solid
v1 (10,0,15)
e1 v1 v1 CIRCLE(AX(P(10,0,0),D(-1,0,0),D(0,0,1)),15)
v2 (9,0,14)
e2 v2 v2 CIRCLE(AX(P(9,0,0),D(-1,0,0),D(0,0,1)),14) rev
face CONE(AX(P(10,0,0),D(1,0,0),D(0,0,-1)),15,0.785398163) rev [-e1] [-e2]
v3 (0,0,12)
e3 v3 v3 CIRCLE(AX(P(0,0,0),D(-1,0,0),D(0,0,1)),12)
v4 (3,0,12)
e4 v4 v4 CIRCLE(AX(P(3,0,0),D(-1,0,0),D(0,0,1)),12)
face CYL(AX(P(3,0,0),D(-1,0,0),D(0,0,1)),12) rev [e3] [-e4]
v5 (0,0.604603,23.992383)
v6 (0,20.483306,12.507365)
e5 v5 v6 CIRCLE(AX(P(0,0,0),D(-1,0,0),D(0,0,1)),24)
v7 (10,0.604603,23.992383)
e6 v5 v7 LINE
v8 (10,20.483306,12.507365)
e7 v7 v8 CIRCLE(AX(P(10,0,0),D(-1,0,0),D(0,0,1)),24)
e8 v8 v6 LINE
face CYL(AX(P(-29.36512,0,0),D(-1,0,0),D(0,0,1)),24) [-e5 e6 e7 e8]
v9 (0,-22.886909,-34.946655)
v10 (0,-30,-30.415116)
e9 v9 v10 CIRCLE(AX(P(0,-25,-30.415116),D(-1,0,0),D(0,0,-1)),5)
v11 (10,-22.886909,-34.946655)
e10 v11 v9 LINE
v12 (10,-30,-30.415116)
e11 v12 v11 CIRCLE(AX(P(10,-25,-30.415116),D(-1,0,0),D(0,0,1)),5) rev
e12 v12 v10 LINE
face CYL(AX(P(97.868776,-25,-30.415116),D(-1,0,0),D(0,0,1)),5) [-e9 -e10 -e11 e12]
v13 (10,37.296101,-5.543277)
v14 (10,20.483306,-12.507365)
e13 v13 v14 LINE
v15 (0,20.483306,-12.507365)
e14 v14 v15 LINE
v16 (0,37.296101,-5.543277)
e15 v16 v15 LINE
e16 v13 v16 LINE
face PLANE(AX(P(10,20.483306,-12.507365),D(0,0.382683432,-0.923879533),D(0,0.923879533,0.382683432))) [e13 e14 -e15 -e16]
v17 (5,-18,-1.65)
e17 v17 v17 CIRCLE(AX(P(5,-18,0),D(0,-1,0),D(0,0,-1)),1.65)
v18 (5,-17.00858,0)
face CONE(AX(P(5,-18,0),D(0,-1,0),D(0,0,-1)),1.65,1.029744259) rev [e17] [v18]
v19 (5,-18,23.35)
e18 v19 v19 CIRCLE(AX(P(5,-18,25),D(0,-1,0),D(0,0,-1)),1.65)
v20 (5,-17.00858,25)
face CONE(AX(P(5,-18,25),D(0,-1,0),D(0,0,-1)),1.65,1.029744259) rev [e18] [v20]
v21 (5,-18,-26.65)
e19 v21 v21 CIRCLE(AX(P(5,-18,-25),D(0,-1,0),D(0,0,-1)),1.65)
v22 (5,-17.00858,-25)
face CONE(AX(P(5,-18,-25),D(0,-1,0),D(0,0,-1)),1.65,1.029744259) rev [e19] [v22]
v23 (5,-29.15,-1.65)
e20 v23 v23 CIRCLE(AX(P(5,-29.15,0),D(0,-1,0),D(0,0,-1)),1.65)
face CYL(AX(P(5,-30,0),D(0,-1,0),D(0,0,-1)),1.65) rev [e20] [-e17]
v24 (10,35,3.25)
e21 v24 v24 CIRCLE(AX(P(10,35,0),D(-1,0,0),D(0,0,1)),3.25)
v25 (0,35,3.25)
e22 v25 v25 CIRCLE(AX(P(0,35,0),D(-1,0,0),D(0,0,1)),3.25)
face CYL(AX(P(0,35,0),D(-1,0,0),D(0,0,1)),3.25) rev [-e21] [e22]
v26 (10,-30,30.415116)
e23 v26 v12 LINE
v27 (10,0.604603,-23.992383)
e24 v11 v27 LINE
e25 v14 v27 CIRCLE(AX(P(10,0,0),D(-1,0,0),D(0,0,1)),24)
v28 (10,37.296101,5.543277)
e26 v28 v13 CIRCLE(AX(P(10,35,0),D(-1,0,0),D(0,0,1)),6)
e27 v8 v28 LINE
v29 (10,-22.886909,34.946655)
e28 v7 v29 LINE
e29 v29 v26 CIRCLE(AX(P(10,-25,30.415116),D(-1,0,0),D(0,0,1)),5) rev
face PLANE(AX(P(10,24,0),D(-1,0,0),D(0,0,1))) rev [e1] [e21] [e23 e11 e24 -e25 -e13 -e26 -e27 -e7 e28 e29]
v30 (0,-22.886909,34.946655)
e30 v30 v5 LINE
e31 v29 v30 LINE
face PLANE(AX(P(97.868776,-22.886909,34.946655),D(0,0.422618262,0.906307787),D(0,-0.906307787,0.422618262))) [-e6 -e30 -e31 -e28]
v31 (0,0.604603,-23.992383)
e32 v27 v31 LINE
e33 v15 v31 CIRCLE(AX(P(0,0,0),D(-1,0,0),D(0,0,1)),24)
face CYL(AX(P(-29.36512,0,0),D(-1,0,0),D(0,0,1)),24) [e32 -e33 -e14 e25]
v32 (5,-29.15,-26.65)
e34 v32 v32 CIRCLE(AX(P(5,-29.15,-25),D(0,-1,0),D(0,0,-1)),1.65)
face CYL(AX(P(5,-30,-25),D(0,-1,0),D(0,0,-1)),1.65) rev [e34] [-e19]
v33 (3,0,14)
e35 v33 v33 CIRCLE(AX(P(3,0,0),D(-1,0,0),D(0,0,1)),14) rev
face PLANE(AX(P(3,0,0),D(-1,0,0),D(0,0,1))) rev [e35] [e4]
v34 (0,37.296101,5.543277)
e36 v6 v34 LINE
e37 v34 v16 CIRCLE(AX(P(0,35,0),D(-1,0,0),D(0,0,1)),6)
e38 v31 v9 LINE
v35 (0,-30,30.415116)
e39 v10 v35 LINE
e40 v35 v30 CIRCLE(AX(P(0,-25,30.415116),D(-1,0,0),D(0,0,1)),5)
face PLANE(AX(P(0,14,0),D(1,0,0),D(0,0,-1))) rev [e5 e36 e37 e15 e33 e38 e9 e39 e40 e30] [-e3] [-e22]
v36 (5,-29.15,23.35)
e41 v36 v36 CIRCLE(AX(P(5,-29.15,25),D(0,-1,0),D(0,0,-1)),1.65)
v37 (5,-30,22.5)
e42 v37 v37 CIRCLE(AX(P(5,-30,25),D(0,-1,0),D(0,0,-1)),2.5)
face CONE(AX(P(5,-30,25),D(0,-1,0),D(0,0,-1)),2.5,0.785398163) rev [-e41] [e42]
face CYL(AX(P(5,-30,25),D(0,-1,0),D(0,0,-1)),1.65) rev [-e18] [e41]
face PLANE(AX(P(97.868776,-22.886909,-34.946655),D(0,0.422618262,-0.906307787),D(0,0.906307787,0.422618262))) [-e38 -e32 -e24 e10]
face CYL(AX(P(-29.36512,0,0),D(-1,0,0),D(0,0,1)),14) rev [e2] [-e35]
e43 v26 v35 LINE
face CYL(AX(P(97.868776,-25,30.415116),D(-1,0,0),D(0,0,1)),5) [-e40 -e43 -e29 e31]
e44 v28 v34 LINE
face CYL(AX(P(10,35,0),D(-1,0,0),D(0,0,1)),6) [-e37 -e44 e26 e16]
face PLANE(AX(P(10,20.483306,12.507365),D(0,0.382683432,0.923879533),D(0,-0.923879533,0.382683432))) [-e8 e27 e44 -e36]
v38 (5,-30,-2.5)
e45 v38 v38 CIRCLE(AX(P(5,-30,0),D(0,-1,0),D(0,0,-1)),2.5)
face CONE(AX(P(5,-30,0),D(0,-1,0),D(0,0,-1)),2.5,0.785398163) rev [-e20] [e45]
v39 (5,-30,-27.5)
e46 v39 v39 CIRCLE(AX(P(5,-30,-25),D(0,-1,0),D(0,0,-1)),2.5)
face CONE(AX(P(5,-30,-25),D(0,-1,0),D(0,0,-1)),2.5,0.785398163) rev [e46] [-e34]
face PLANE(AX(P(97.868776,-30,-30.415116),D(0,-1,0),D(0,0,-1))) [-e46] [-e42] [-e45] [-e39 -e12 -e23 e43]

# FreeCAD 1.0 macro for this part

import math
import FreeCAD as App
import Part
import Sketcher
from FreeCAD import Vector
Q = App.Units.Quantity


def edges_at(feature, points):
    """Names of the edges that pass closest to the given points."""
    edges = feature.Shape.Edges
    near = lambda p: min(range(len(edges)), key=lambda i: edges[i].distToShape(Part.Vertex(*p))[0])
    return sorted({f"Edge{near(p) + 1}" for p in points})


def add_polygon(sketch, points):
    """Adds a closed chain of lines whose ends are joined by coincident constraints."""
    first, n = sketch.GeometryCount, len(points)
    for a, b in zip(points, points[1:] + points[:1]):
        sketch.addGeometry(Part.LineSegment(App.Vector(*a, 0), App.Vector(*b, 0)), False)
    for i in range(n):
        sketch.addConstraint(Sketcher.Constraint("Coincident", first + i, 2, first + (i + 1) % n, 1))

doc = App.newDocument("Part")
body = doc.addObject("PartDesign::Body", "Body")

# Sketch on XY plane
sketch1 = body.newObject("Sketcher::SketchObject", "Sketch")
sketch1.AttachmentSupport = (doc.getObject("XY_Plane"), [""])
sketch1.MapMode = "FlatFace"
add_polygon(sketch1, [(0, 24), (0, 14), (10, 14), (10, 24)])  # lines 0-3
sketch1.addConstraint([
    Sketcher.Constraint("Vertical", 0),
    Sketcher.Constraint("Horizontal", 1),
    Sketcher.Constraint("Vertical", 2),
    Sketcher.Constraint("Horizontal", 3),
    Sketcher.Constraint("PointOnObject", 0, 2, -2),
    Sketcher.Constraint("Equal", 3, 0),
    Sketcher.Constraint("DistanceX", 1, 1, 1, 2, Q("10 mm")),
    Sketcher.Constraint("DistanceY", -1, 1, 0, 2, Q("14 mm")),
])
revolution = body.newObject("PartDesign::Revolution", "Revolution")
revolution.Profile = sketch1
revolution.ReferenceAxis = (sketch1, ["H_Axis"])
revolution.Angle = 360

# Sketch on YZ plane
sketch2 = body.newObject("Sketcher::SketchObject", "Sketch001")
sketch2.AttachmentSupport = (doc.getObject("YZ_Plane"), [""])
sketch2.MapMode = "FlatFace"
sketch2.addGeometry([
    Part.Circle(Vector(0, 0, 0), Vector(0, 0, 1), 14),
    Part.Circle(Vector(0, 0, 0), Vector(0, 0, 1), 12),
], False)
sketch2.addConstraint([
    Sketcher.Constraint("Coincident", 0, 3, -1, 1),
    Sketcher.Constraint("Coincident", 1, 3, -1, 1),
    Sketcher.Constraint("Diameter", 0, Q("28 mm")),
    Sketcher.Constraint("Diameter", 1, Q("24 mm")),
])
pad1 = body.newObject("PartDesign::Pad", "Pad")
pad1.Profile = sketch2
pad1.Length = 3

# Sketch on YZ plane
sketch3 = body.newObject("Sketcher::SketchObject", "Sketch002")
sketch3.AttachmentSupport = (doc.getObject("YZ_Plane"), [""])
sketch3.MapMode = "FlatFace"
sketch3.addGeometry([
    Part.LineSegment(Vector(-30, -30, 0), Vector(-30, 30, 0)),  # 0
    Part.ArcOfCircle(Part.Circle(Vector(-25, 30, 0), Vector(0, 0, 1), 5), math.radians(65), math.radians(180)),  # 1
    Part.LineSegment(Vector(-23, 35, 0), Vector(9, 20, 0)),  # 2
    Part.ArcOfCircle(Part.Circle(Vector(0, 0, 0), Vector(0, 0, 1), 22), math.radians(-65), math.radians(65)),  # 3
    Part.LineSegment(Vector(9, -20, 0), Vector(-23, -35, 0)),  # 4
    Part.ArcOfCircle(Part.Circle(Vector(-25, -30, 0), Vector(0, 0, 1), 5), math.radians(180), math.radians(295)),  # 5
    Part.Circle(Vector(0, 0, 0), Vector(0, 0, 1), 20),  # 6
], False)
sketch3.addConstraint([
    Sketcher.Constraint("Tangent", 0, 2, 1, 2),
    Sketcher.Constraint("Tangent", 1, 1, 2, 1),
    Sketcher.Constraint("Tangent", 2, 2, 3, 2),
    Sketcher.Constraint("Tangent", 3, 1, 4, 1),
    Sketcher.Constraint("Tangent", 4, 2, 5, 2),
    Sketcher.Constraint("Tangent", 5, 1, 0, 1),
    Sketcher.Constraint("Vertical", 0),
    Sketcher.Constraint("Coincident", 3, 3, -1, 1),
    Sketcher.Constraint("Coincident", 6, 3, -1, 1),
    Sketcher.Constraint("Equal", 1, 5),
    Sketcher.Constraint("Vertical", 2, 2, 3, 1),
    Sketcher.Constraint("Diameter", 6, Q("39 mm")),
    Sketcher.Constraint("Radius", 1, Q("5 mm")),
    Sketcher.Constraint("Radius", 3, Q("22 mm")),
    Sketcher.Constraint("Angle", 2, Q("-25 deg")),
    Sketcher.Constraint("DistanceX", 1, 3, -1, 1, Q("25 mm")),
])
pad2 = body.newObject("PartDesign::Pad", "Pad001")
pad2.Profile = sketch3
pad2.Length = 10

# Sketch on XZ plane
sketch4 = body.newObject("Sketcher::SketchObject", "Sketch003")
sketch4.AttachmentSupport = (doc.getObject("XZ_Plane"), [""])
sketch4.MapMode = "FlatFace"
sketch4.AttachmentOffset = App.Placement(Vector(0, 0, 30), App.Rotation())
sketch4.addGeometry([
    Part.Circle(Vector(5, 0, 0), Vector(0, 0, 1), 1.6),
    Part.Circle(Vector(5, -25, 0), Vector(0, 0, 1), 1.6),
    Part.Circle(Vector(5, 25, 0), Vector(0, 0, 1), 1.6),
], False)
sketch4.addConstraint([
    Sketcher.Constraint("Equal", 0, 1),
    Sketcher.Constraint("Equal", 1, 2),
    Sketcher.Constraint("Symmetric", 1, 3, 2, 3, -1),
    Sketcher.Constraint("PointOnObject", 0, 3, -1),
    Sketcher.Constraint("Vertical", 0, 3, 1, 3),
    Sketcher.Constraint("Diameter", 0, Q("3.3 mm")),
    Sketcher.Constraint("DistanceX", -1, 1, 0, 3, Q("5 mm")),
    Sketcher.Constraint("DistanceY", 1, 3, -1, 1, Q("25 mm")),
])
doc.recompute()
hole = body.newObject("PartDesign::Hole", "Hole")
hole.Profile = sketch4
hole.ThreadType = "None"
hole.Diameter = 3.3
hole.DepthType = "Dimension"
hole.Depth = 12
hole.DrillPoint = "Angled"
hole.DrillPointAngle = 118
hole.HoleCutType = "Countersink"
hole.HoleCutDiameter = 5
hole.HoleCutCountersinkAngle = 90

# Sketch on YZ plane
sketch5 = body.newObject("Sketcher::SketchObject", "Sketch004")
sketch5.AttachmentSupport = (doc.getObject("YZ_Plane"), [""])
sketch5.MapMode = "FlatFace"
sketch5.AttachmentOffset = App.Placement(Vector(0, 0, 10), App.Rotation())
sketch5.addGeometry([
    Part.LineSegment(Vector(37, -6, 0), Vector(20, -13, 0)),
    Part.ArcOfCircle(Part.Circle(Vector(0, 0, 0), Vector(0, 0, 1), 24), math.radians(-31), math.radians(31)),
    Part.LineSegment(Vector(20, 13, 0), Vector(37, 6, 0)),
    Part.ArcOfCircle(Part.Circle(Vector(35, 0, 0), Vector(0, 0, 1), 6), math.radians(-68), math.radians(68)),
], False)
sketch5.addConstraint([
    Sketcher.Constraint("Coincident", 0, 2, 1, 1),
    Sketcher.Constraint("Coincident", 1, 2, 2, 1),
    Sketcher.Constraint("Tangent", 2, 2, 3, 2),
    Sketcher.Constraint("Tangent", 3, 1, 0, 1),
    Sketcher.Constraint("Coincident", 1, 3, -1, 1),
    Sketcher.Constraint("Symmetric", 2, 2, 3, 1, -1),
    Sketcher.Constraint("Radius", 1, Q("24 mm")),
    Sketcher.Constraint("Radius", 3, Q("6 mm")),
    Sketcher.Constraint("DistanceX", -1, 1, 3, 3, Q("35 mm")),
    Sketcher.Constraint("Angle", 0, Q("-157.5 deg")),
])
pad3 = body.newObject("PartDesign::Pad", "Pad002")
pad3.Profile = sketch5
pad3.Length = 10
pad3.Reversed = True

# Sketch on YZ plane
sketch6 = body.newObject("Sketcher::SketchObject", "Sketch005")
sketch6.AttachmentSupport = (doc.getObject("YZ_Plane"), [""])
sketch6.MapMode = "FlatFace"
sketch6.addGeometry(Part.Circle(Vector(35, 0, 0), Vector(0, 0, 1), 3.2), False)
sketch6.addConstraint([
    Sketcher.Constraint("PointOnObject", 0, 3, -1),
    Sketcher.Constraint("Diameter", 0, Q("6.5 mm")),
    Sketcher.Constraint("DistanceX", -1, 1, 0, 3, Q("35 mm")),
])
doc.recompute()
hole2 = body.newObject("PartDesign::Hole", "Hole001")
hole2.Profile = sketch6
hole2.ThreadType = "None"
hole2.Diameter = 6.5
hole2.DepthType = "ThroughAll"
hole2.Reversed = True
doc.recompute()

chamfer = body.newObject("PartDesign::Chamfer", "Chamfer")
chamfer.Base = (hole2, edges_at(hole2, [(10, 0, -14)]))
chamfer.Size = 1

doc.recompute()
